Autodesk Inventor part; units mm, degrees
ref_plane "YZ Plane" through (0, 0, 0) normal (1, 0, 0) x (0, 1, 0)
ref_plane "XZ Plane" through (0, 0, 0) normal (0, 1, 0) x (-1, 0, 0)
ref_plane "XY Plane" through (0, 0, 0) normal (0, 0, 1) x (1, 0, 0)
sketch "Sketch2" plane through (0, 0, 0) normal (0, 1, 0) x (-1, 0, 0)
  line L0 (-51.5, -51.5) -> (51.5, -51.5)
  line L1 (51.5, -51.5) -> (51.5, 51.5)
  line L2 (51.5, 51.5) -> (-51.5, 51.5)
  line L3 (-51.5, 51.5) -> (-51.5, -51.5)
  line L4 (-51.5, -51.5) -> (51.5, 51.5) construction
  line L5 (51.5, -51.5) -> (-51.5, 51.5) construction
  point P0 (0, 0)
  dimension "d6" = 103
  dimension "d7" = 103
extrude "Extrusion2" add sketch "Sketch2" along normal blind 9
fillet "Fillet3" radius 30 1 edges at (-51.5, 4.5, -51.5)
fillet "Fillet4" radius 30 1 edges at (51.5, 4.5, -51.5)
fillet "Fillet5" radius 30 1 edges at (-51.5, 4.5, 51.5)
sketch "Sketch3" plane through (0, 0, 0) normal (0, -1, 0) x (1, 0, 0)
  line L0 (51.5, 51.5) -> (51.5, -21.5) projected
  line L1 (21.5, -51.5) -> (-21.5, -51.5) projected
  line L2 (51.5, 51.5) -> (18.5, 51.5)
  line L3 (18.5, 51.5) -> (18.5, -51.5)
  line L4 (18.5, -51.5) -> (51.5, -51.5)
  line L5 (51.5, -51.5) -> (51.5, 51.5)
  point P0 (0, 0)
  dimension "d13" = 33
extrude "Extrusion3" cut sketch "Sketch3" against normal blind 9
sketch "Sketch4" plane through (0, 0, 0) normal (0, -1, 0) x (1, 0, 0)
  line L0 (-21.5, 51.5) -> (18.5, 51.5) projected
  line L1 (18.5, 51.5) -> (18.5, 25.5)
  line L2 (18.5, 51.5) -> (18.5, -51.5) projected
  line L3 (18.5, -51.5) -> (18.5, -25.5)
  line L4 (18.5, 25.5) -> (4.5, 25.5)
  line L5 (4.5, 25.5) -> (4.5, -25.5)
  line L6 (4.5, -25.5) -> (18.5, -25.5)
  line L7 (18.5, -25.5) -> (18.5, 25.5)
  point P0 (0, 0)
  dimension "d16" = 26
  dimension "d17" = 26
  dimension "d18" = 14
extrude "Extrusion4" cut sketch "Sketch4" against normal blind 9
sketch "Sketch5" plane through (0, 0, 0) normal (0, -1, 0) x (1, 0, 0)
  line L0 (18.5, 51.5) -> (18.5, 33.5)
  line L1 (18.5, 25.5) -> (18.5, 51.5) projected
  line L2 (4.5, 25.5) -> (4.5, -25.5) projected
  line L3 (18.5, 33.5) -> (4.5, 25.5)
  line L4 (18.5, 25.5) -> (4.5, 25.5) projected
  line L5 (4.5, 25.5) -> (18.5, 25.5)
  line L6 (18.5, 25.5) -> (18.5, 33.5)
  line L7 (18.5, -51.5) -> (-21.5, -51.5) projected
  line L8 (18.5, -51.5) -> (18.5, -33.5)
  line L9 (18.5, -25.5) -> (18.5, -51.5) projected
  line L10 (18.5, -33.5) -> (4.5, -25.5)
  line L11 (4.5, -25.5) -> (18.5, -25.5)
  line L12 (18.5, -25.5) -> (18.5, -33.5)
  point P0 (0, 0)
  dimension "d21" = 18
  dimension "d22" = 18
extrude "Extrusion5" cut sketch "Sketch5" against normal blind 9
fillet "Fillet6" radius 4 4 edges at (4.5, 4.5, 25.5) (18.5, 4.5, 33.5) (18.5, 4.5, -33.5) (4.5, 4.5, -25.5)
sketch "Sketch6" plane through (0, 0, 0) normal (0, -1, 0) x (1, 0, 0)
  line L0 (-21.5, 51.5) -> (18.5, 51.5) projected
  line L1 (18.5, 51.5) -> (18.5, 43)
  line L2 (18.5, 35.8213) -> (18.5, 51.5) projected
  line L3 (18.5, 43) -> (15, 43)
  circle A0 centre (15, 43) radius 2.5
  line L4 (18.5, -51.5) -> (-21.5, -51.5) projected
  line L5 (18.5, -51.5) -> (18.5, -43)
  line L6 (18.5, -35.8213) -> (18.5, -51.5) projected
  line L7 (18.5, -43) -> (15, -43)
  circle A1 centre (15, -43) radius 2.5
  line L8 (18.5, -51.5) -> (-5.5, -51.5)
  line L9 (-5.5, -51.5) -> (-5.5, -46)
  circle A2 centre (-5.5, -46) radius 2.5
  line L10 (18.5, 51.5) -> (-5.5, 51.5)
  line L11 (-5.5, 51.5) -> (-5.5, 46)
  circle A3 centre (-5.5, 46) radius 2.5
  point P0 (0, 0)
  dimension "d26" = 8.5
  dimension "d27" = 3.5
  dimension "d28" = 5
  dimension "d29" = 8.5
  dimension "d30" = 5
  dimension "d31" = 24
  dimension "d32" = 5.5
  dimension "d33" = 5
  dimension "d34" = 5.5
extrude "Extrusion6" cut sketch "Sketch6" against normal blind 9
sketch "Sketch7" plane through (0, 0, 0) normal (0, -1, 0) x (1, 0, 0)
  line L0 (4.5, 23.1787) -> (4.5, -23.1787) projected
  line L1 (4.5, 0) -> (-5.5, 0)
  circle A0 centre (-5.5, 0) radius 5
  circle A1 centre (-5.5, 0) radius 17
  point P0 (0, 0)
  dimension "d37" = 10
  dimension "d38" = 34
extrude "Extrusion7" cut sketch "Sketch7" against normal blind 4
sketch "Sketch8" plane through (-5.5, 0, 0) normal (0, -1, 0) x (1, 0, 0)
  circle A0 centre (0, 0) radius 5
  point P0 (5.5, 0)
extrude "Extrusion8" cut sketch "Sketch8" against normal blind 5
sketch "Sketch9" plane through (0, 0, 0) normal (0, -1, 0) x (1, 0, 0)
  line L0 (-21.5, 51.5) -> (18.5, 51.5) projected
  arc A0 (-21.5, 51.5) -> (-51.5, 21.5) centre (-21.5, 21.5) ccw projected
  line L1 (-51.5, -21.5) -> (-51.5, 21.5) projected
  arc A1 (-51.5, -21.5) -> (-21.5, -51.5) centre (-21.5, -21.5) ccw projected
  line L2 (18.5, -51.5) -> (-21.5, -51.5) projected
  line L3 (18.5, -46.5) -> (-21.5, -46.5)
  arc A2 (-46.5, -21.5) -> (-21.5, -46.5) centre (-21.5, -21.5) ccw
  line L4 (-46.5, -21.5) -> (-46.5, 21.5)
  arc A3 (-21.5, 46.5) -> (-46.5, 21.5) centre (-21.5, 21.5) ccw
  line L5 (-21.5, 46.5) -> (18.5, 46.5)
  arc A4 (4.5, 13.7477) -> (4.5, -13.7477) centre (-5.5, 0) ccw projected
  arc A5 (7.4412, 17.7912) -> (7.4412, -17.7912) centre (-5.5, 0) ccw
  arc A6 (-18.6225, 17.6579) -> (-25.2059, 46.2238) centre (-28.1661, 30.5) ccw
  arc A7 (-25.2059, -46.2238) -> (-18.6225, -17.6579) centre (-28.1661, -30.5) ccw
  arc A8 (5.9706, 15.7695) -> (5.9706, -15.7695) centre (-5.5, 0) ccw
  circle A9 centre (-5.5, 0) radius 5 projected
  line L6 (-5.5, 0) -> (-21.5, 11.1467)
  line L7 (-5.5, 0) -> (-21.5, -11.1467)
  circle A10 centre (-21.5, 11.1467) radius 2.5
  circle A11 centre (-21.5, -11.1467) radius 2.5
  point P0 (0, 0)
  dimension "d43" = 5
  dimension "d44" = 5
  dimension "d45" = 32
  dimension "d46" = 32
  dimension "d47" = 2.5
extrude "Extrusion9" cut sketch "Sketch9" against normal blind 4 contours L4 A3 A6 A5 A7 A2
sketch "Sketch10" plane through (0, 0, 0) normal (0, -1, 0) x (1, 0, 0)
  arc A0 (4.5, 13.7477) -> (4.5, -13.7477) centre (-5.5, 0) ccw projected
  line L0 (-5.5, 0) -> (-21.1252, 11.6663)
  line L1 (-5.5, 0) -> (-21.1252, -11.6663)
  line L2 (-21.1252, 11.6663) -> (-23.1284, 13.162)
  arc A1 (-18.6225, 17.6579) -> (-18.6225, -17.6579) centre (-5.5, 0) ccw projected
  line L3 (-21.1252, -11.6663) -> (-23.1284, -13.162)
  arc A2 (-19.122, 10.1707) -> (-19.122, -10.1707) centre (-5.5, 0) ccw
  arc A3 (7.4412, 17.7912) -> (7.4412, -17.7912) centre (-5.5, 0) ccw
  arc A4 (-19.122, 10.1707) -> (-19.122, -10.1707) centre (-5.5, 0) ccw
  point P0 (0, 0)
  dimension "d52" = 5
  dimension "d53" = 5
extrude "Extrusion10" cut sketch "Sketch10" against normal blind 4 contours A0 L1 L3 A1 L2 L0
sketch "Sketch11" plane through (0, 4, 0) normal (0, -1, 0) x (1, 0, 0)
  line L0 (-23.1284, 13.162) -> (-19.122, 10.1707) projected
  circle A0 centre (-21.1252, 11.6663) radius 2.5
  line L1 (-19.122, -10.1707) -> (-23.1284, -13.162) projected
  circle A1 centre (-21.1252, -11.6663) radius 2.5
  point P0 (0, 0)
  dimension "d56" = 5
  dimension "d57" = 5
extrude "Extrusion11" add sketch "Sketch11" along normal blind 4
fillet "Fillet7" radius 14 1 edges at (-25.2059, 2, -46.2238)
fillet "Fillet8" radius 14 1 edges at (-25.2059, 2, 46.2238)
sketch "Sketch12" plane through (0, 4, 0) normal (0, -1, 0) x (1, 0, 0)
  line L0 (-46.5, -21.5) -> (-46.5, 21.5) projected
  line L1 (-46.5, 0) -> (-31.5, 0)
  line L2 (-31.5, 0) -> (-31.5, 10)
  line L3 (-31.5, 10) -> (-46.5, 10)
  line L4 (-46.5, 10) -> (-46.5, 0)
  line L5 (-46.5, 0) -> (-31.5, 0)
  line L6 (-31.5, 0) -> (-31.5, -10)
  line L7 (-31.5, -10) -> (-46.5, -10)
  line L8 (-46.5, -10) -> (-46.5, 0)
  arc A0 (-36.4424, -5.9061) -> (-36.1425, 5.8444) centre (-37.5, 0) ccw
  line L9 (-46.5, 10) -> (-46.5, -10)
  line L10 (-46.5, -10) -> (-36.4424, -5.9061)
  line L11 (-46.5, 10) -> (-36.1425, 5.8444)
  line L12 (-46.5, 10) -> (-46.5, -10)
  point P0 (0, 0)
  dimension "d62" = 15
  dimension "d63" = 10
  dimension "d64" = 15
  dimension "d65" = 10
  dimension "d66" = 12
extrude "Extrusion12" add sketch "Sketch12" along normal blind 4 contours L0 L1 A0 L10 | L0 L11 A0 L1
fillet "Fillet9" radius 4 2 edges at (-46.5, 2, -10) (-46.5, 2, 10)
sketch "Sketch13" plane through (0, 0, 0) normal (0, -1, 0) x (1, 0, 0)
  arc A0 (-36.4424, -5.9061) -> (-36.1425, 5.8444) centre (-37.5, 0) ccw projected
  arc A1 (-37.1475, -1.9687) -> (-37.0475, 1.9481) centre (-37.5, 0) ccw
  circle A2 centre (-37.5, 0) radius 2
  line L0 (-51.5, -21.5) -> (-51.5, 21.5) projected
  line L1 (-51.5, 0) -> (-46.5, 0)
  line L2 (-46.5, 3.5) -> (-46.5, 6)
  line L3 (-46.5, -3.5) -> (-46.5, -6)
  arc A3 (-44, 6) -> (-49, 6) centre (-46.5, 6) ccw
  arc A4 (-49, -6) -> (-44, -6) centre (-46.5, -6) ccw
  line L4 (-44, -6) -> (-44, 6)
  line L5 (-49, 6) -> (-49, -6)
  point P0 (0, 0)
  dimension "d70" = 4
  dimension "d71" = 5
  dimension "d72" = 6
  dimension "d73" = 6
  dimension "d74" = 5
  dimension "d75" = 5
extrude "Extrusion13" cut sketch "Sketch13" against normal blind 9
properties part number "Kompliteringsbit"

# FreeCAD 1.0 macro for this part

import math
import FreeCAD as App
import Part
import Sketcher
from FreeCAD import Vector
Q = App.Units.Quantity


def edges_at(feature, points):
    """Names of the edges that pass closest to the given points."""
    edges = feature.Shape.Edges
    near = lambda p: min(range(len(edges)), key=lambda i: edges[i].distToShape(Part.Vertex(*p))[0])
    return sorted({f"Edge{near(p) + 1}" for p in points})

doc = App.newDocument("Part")
body = doc.addObject("PartDesign::Body", "Body")

# Sketch on XZ plane
sketch1 = body.newObject("Sketcher::SketchObject", "Sketch")
sketch1.AttachmentSupport = (doc.getObject("XZ_Plane"), [""])
sketch1.MapMode = "FlatFace"
sketch1.addGeometry(Part.LineSegment(Vector(52, 52, 0), Vector(52, -52, 0)), False)
sketch1.addGeometry(Part.LineSegment(Vector(52, -52, 0), Vector(-52, -52, 0)), False)
sketch1.addGeometry(Part.LineSegment(Vector(-52, -52, 0), Vector(-52, 52, 0)), False)
sketch1.addGeometry(Part.LineSegment(Vector(-52, 52, 0), Vector(52, 52, 0)), False)
sketch1.addConstraint(Sketcher.Constraint("Coincident", 0, 2, 1, 1))
sketch1.addConstraint(Sketcher.Constraint("Coincident", 1, 2, 2, 1))
sketch1.addConstraint(Sketcher.Constraint("Coincident", 2, 2, 3, 1))
sketch1.addConstraint(Sketcher.Constraint("Coincident", 3, 2, 0, 1))
sketch1.addConstraint(Sketcher.Constraint("Vertical", 0))
sketch1.addConstraint(Sketcher.Constraint("Horizontal", 1))
sketch1.addConstraint(Sketcher.Constraint("Vertical", 2))
sketch1.addConstraint(Sketcher.Constraint("Horizontal", 3))
sketch1.addConstraint(Sketcher.Constraint("Symmetric", 0, 2, 2, 2, -1, 1))
sketch1.addConstraint(Sketcher.Constraint("Equal", 3, 0))
sketch1.addConstraint(Sketcher.Constraint("DistanceX", 1, 2, 1, 1, Q("103 mm")))
pad1 = body.newObject("PartDesign::Pad", "Pad")
pad1.Profile = sketch1
pad1.Length = 9
pad1.Reversed = True
doc.recompute()

fillet = body.newObject("PartDesign::Fillet", "Fillet")
fillet.Base = (pad1, edges_at(pad1, [(-51.5, 4.5, -51.5)]))
fillet.Radius = 30
doc.recompute()

fillet2 = body.newObject("PartDesign::Fillet", "Fillet001")
fillet2.Base = (fillet, edges_at(fillet, [(51.5, 4.5, -51.5)]))
fillet2.Radius = 30
doc.recompute()

fillet3 = body.newObject("PartDesign::Fillet", "Fillet002")
fillet3.Base = (fillet2, edges_at(fillet2, [(-51.5, 4.5, 51.5)]))
fillet3.Radius = 30

# Sketch on XZ plane
sketch2 = body.newObject("Sketcher::SketchObject", "Sketch001")
sketch2.AttachmentSupport = (doc.getObject("XZ_Plane"), [""])
sketch2.MapMode = "FlatFace"
sketch2.addGeometry(Part.LineSegment(Vector(52, -52, 0), Vector(52, 52, 0)), False)
sketch2.addGeometry(Part.LineSegment(Vector(52, 52, 0), Vector(18, 52, 0)), False)
sketch2.addGeometry(Part.LineSegment(Vector(18, 52, 0), Vector(18, -52, 0)), False)
sketch2.addGeometry(Part.LineSegment(Vector(18, -52, 0), Vector(52, -52, 0)), False)
sketch2.addConstraint(Sketcher.Constraint("Coincident", 0, 2, 1, 1))
sketch2.addConstraint(Sketcher.Constraint("Coincident", 1, 2, 2, 1))
sketch2.addConstraint(Sketcher.Constraint("Coincident", 2, 2, 3, 1))
sketch2.addConstraint(Sketcher.Constraint("Coincident", 3, 2, 0, 1))
sketch2.addConstraint(Sketcher.Constraint("Vertical", 0))
sketch2.addConstraint(Sketcher.Constraint("Horizontal", 1))
sketch2.addConstraint(Sketcher.Constraint("Vertical", 2))
sketch2.addConstraint(Sketcher.Constraint("Horizontal", 3))
sketch2.addConstraint(Sketcher.Constraint("DistanceX", 1, 2, 1, 1, Q("33 mm")))
sketch2.addConstraint(Sketcher.Constraint("DistanceY", 0, 1, 0, 2, Q("103 mm")))
sketch2.addConstraint(Sketcher.Constraint("DistanceX", -1, 1, 0, 2, Q("51.5 mm")))
sketch2.addConstraint(Sketcher.Constraint("DistanceY", -1, 1, 0, 2, Q("51.5 mm")))
pocket1 = body.newObject("PartDesign::Pocket", "Pocket")
pocket1.Profile = sketch2
pocket1.Length = 9

# Sketch on XZ plane
sketch3 = body.newObject("Sketcher::SketchObject", "Sketch002")
sketch3.AttachmentSupport = (doc.getObject("XZ_Plane"), [""])
sketch3.MapMode = "FlatFace"
sketch3.addGeometry(Part.LineSegment(Vector(18, -26, 0), Vector(18, 26, 0)), False)
sketch3.addGeometry(Part.LineSegment(Vector(18, 26, 0), Vector(4, 26, 0)), False)
sketch3.addGeometry(Part.LineSegment(Vector(4, 26, 0), Vector(4, -26, 0)), False)
sketch3.addGeometry(Part.LineSegment(Vector(4, -26, 0), Vector(18, -26, 0)), False)
sketch3.addConstraint(Sketcher.Constraint("Coincident", 0, 2, 1, 1))
sketch3.addConstraint(Sketcher.Constraint("Coincident", 1, 2, 2, 1))
sketch3.addConstraint(Sketcher.Constraint("Coincident", 2, 2, 3, 1))
sketch3.addConstraint(Sketcher.Constraint("Coincident", 3, 2, 0, 1))
sketch3.addConstraint(Sketcher.Constraint("Vertical", 0))
sketch3.addConstraint(Sketcher.Constraint("Horizontal", 1))
sketch3.addConstraint(Sketcher.Constraint("Vertical", 2))
sketch3.addConstraint(Sketcher.Constraint("Horizontal", 3))
sketch3.addConstraint(Sketcher.Constraint("DistanceX", 1, 2, 1, 1, Q("14 mm")))
sketch3.addConstraint(Sketcher.Constraint("DistanceY", 0, 1, 0, 2, Q("51 mm")))
sketch3.addConstraint(Sketcher.Constraint("DistanceX", -1, 1, 0, 2, Q("18.5 mm")))
sketch3.addConstraint(Sketcher.Constraint("DistanceY", -1, 1, 0, 2, Q("25.5 mm")))
pocket2 = body.newObject("PartDesign::Pocket", "Pocket001")
pocket2.Profile = sketch3
pocket2.Length = 9

# Sketch on XZ plane
sketch4 = body.newObject("Sketcher::SketchObject", "Sketch003")
sketch4.AttachmentSupport = (doc.getObject("XZ_Plane"), [""])
sketch4.MapMode = "FlatFace"
sketch4.addGeometry(Part.LineSegment(Vector(4, 26, 0), Vector(18, 26, 0)), False)
sketch4.addGeometry(Part.LineSegment(Vector(18, 26, 0), Vector(18, 34, 0)), False)
sketch4.addGeometry(Part.LineSegment(Vector(18, 34, 0), Vector(4, 26, 0)), False)
sketch4.addGeometry(Part.LineSegment(Vector(18, -26, 0), Vector(4, -26, 0)), False)
sketch4.addGeometry(Part.LineSegment(Vector(4, -26, 0), Vector(18, -34, 0)), False)
sketch4.addGeometry(Part.LineSegment(Vector(18, -34, 0), Vector(18, -26, 0)), False)
sketch4.addConstraint(Sketcher.Constraint("Coincident", 0, 2, 1, 1))
sketch4.addConstraint(Sketcher.Constraint("Coincident", 1, 2, 2, 1))
sketch4.addConstraint(Sketcher.Constraint("Coincident", 2, 2, 0, 1))
sketch4.addConstraint(Sketcher.Constraint("Coincident", 3, 2, 4, 1))
sketch4.addConstraint(Sketcher.Constraint("Coincident", 4, 2, 5, 1))
sketch4.addConstraint(Sketcher.Constraint("Coincident", 5, 2, 3, 1))
sketch4.addConstraint(Sketcher.Constraint("Horizontal", 0))
sketch4.addConstraint(Sketcher.Constraint("Vertical", 1))
sketch4.addConstraint(Sketcher.Constraint("Horizontal", 3))
sketch4.addConstraint(Sketcher.Constraint("Vertical", 5))
sketch4.addConstraint(Sketcher.Constraint("Symmetric", 2, 2, 3, 2, -1))
sketch4.addConstraint(Sketcher.Constraint("Symmetric", 1, 2, 4, 2, -1))
sketch4.addConstraint(Sketcher.Constraint("DistanceX", 0, 1, 0, 2, Q("14 mm")))
sketch4.addConstraint(Sketcher.Constraint("DistanceY", 1, 1, 1, 2, Q("8 mm")))
sketch4.addConstraint(Sketcher.Constraint("DistanceY", 3, 2, 2, 2, Q("51 mm")))
sketch4.addConstraint(Sketcher.Constraint("DistanceX", -1, 1, 0, 2, Q("18.5 mm")))
pocket3 = body.newObject("PartDesign::Pocket", "Pocket002")
pocket3.Profile = sketch4
pocket3.Length = 9
doc.recompute()

fillet4 = body.newObject("PartDesign::Fillet", "Fillet003")
fillet4.Base = (pocket3, edges_at(pocket3, [
    (4.5, 4.5, 25.5),
    (18.5, 4.5, 33.5),
    (18.5, 4.5, -33.5),
    (4.5, 4.5, -25.5),
]))
fillet4.Radius = 4

# Sketch on XZ plane
sketch5 = body.newObject("Sketcher::SketchObject", "Sketch004")
sketch5.AttachmentSupport = (doc.getObject("XZ_Plane"), [""])
sketch5.MapMode = "FlatFace"
sketch5.addGeometry(Part.Circle(Vector(15, 43, 0), Vector(0, 0, 1), 2.5), False)
sketch5.addGeometry(Part.Circle(Vector(-5.5, 46, 0), Vector(0, 0, 1), 2.5), False)
sketch5.addGeometry(Part.Circle(Vector(-5.5, -46, 0), Vector(0, 0, 1), 2.5), False)
sketch5.addGeometry(Part.Circle(Vector(15, -43, 0), Vector(0, 0, 1), 2.5), False)
sketch5.addConstraint(Sketcher.Constraint("Equal", 0, 1))
sketch5.addConstraint(Sketcher.Constraint("Equal", 1, 2))
sketch5.addConstraint(Sketcher.Constraint("Equal", 2, 3))
sketch5.addConstraint(Sketcher.Constraint("Symmetric", 1, 3, 2, 3, -1))
sketch5.addConstraint(Sketcher.Constraint("Symmetric", 0, 3, 3, 3, -1))
sketch5.addConstraint(Sketcher.Constraint("Diameter", 0, Q("5 mm")))
sketch5.addConstraint(Sketcher.Constraint("DistanceX", 1, 3, -1, 1, Q("5.5 mm")))
sketch5.addConstraint(Sketcher.Constraint("DistanceX", -1, 1, 0, 3, Q("15 mm")))
sketch5.addConstraint(Sketcher.Constraint("DistanceY", -1, 1, 0, 3, Q("43 mm")))
sketch5.addConstraint(Sketcher.Constraint("DistanceY", -1, 1, 1, 3, Q("46 mm")))
pocket4 = body.newObject("PartDesign::Pocket", "Pocket003")
pocket4.Profile = sketch5
pocket4.Length = 9

# Sketch on XZ plane
sketch6 = body.newObject("Sketcher::SketchObject", "Sketch005")
sketch6.AttachmentSupport = (doc.getObject("XZ_Plane"), [""])
sketch6.MapMode = "FlatFace"
sketch6.addGeometry(Part.Circle(Vector(-6, 0, 0), Vector(0, 0, 1), 17), False)
sketch6.addGeometry(Part.Circle(Vector(-6, 0, 0), Vector(0, 0, 1), 5), False)
sketch6.addConstraint(Sketcher.Constraint("Coincident", 1, 3, 0, 3))
sketch6.addConstraint(Sketcher.Constraint("PointOnObject", 0, 3, -1))
sketch6.addConstraint(Sketcher.Constraint("Diameter", 0, Q("34 mm")))
sketch6.addConstraint(Sketcher.Constraint("Diameter", 1, Q("10 mm")))
sketch6.addConstraint(Sketcher.Constraint("DistanceX", 0, 3, -1, 1, Q("5.5 mm")))
pocket5 = body.newObject("PartDesign::Pocket", "Pocket004")
pocket5.Profile = sketch6
pocket5.Length = 4

# Sketch on XZ plane
sketch7 = body.newObject("Sketcher::SketchObject", "Sketch006")
sketch7.AttachmentSupport = (doc.getObject("XZ_Plane"), [""])
sketch7.MapMode = "FlatFace"
sketch7.addGeometry(Part.Circle(Vector(-6, 0, 0), Vector(0, 0, 1), 5), False)
sketch7.addConstraint(Sketcher.Constraint("PointOnObject", 0, 3, -1))
sketch7.addConstraint(Sketcher.Constraint("Diameter", 0, Q("10 mm")))
sketch7.addConstraint(Sketcher.Constraint("DistanceX", 0, 3, -1, 1, Q("5.5 mm")))
pocket6 = body.newObject("PartDesign::Pocket", "Pocket005")
pocket6.Profile = sketch7
pocket6.Length = 5

# Sketch on XZ plane
sketch8 = body.newObject("Sketcher::SketchObject", "Sketch007")
sketch8.AttachmentSupport = (doc.getObject("XZ_Plane"), [""])
sketch8.MapMode = "FlatFace"
sketch8.addGeometry(Part.LineSegment(Vector(-46, 22, 0), Vector(-46, -22, 0)), False)
sketch8.addGeometry(Part.ArcOfCircle(Part.Circle(Vector(-22, -22, 0), Vector(0, 0, 1), 25), math.radians(180), math.radians(261)), False)
sketch8.addGeometry(Part.ArcOfCircle(Part.Circle(Vector(-28, -30, 0), Vector(0, 0, 1), 16), math.radians(-79), math.radians(53)), False)
sketch8.addGeometry(Part.ArcOfCircle(Part.Circle(Vector(-6, 0, 0), Vector(0, 0, 1), 22), math.radians(127), math.radians(233)), False)
sketch8.addGeometry(Part.ArcOfCircle(Part.Circle(Vector(-28, 30, 0), Vector(0, 0, 1), 16), math.radians(-53), math.radians(79)), False)
sketch8.addGeometry(Part.ArcOfCircle(Part.Circle(Vector(-22, 22, 0), Vector(0, 0, 1), 25), math.radians(99), math.radians(180)), False)
sketch8.addConstraint(Sketcher.Constraint("Tangent", 0, 2, 1, 1))
sketch8.addConstraint(Sketcher.Constraint("Coincident", 1, 2, 2, 1))
sketch8.addConstraint(Sketcher.Constraint("Tangent", 2, 2, 3, 2))
sketch8.addConstraint(Sketcher.Constraint("Tangent", 3, 1, 4, 1))
sketch8.addConstraint(Sketcher.Constraint("Coincident", 4, 2, 5, 1))
sketch8.addConstraint(Sketcher.Constraint("Tangent", 5, 2, 0, 1))
sketch8.addConstraint(Sketcher.Constraint("Vertical", 0))
sketch8.addConstraint(Sketcher.Constraint("Equal", 2, 4))
sketch8.addConstraint(Sketcher.Constraint("Equal", 1, 5))
sketch8.addConstraint(Sketcher.Constraint("Symmetric", 2, 3, 4, 3, -1))
sketch8.addConstraint(Sketcher.Constraint("Vertical", 1, 2, 4, 2))
sketch8.addConstraint(Sketcher.Constraint("Radius", 2, Q("16 mm")))
sketch8.addConstraint(Sketcher.Constraint("Radius", 1, Q("25 mm")))
sketch8.addConstraint(Sketcher.Constraint("Radius", 3, Q("22 mm")))
sketch8.addConstraint(Sketcher.Constraint("DistanceY", 0, 2, 0, 1, Q("43 mm")))
sketch8.addConstraint(Sketcher.Constraint("DistanceY", 2, 3, 1, 3, Q("9 mm")))
sketch8.addConstraint(Sketcher.Constraint("DistanceX", 1, 3, 3, 3, Q("16 mm")))
sketch8.addConstraint(Sketcher.Constraint("DistanceX", 1, 3, -1, 1, Q("21.5 mm")))
pocket7 = body.newObject("PartDesign::Pocket", "Pocket006")
pocket7.Profile = sketch8
pocket7.Length = 4

# Sketch on XZ plane
sketch9 = body.newObject("Sketcher::SketchObject", "Sketch008")
sketch9.AttachmentSupport = (doc.getObject("XZ_Plane"), [""])
sketch9.MapMode = "FlatFace"
sketch9.addGeometry(Part.ArcOfCircle(Part.Circle(Vector(-5.5, 0, 0), Vector(0, 0, 1), 17), math.radians(143), math.radians(217)), False)
sketch9.addGeometry(Part.LineSegment(Vector(-19.1, 10.2, 0), Vector(-21.1, 11.7, 0)), False)
sketch9.addGeometry(Part.LineSegment(Vector(-21.1, 11.7, 0), Vector(-23.1, 13.2, 0)), False)
sketch9.addGeometry(Part.ArcOfCircle(Part.Circle(Vector(-5.5, 0, 0), Vector(0, 0, 1), 22), math.radians(143), math.radians(217)), False)
sketch9.addGeometry(Part.LineSegment(Vector(-23.1, -13.2, 0), Vector(-21.1, -11.7, 0)), False)
sketch9.addGeometry(Part.LineSegment(Vector(-21.1, -11.7, 0), Vector(-19.1, -10.2, 0)), False)
sketch9.addConstraint(Sketcher.Constraint("Coincident", 0, 1, 1, 1))
sketch9.addConstraint(Sketcher.Constraint("Coincident", 1, 2, 2, 1))
sketch9.addConstraint(Sketcher.Constraint("Coincident", 2, 2, 3, 1))
sketch9.addConstraint(Sketcher.Constraint("Coincident", 3, 2, 4, 1))
sketch9.addConstraint(Sketcher.Constraint("Coincident", 4, 2, 5, 1))
sketch9.addConstraint(Sketcher.Constraint("Coincident", 5, 2, 0, 2))
sketch9.addConstraint(Sketcher.Constraint("Coincident", 3, 3, 0, 3))
sketch9.addConstraint(Sketcher.Constraint("Symmetric", 2, 2, 3, 2, -1))
sketch9.addConstraint(Sketcher.Constraint("Symmetric", 1, 2, 4, 2, -1))
sketch9.addConstraint(Sketcher.Constraint("Parallel", 1, 2))
sketch9.addConstraint(Sketcher.Constraint("Parallel", 4, 5))
sketch9.addConstraint(Sketcher.Constraint("Equal", 1, 2))
sketch9.addConstraint(Sketcher.Constraint("Radius", 0, Q("17 mm")))
sketch9.addConstraint(Sketcher.Constraint("Radius", 3, Q("22 mm")))
sketch9.addConstraint(Sketcher.Constraint("DistanceX", 0, 3, -1, 1, Q("5.5 mm")))
sketch9.addConstraint(Sketcher.Constraint("DistanceX", 0, 1, -1, 1, Q("19.122 mm")))
sketch9.addConstraint(Sketcher.Constraint("DistanceY", -1, 1, 2, 2, Q("13.162 mm")))
pocket8 = body.newObject("PartDesign::Pocket", "Pocket007")
pocket8.Profile = sketch9
pocket8.Length = 4

# Sketch on XZ plane
sketch10 = body.newObject("Sketcher::SketchObject", "Sketch009")
sketch10.AttachmentSupport = (doc.getObject("XZ_Plane"), [""])
sketch10.MapMode = "FlatFace"
sketch10.AttachmentOffset = App.Placement(Vector(0, 0, -4), App.Rotation())
sketch10.addGeometry(Part.Circle(Vector(-21.1, 11.7, 0), Vector(0, 0, 1), 2.5), False)
sketch10.addGeometry(Part.Circle(Vector(-21.1, -11.7, 0), Vector(0, 0, 1), 2.5), False)
sketch10.addConstraint(Sketcher.Constraint("Equal", 0, 1))
sketch10.addConstraint(Sketcher.Constraint("Symmetric", 0, 3, 1, 3, -1))
sketch10.addConstraint(Sketcher.Constraint("Diameter", 0, Q("5 mm")))
sketch10.addConstraint(Sketcher.Constraint("DistanceX", 0, 3, -1, 1, Q("21.1252 mm")))
sketch10.addConstraint(Sketcher.Constraint("DistanceY", -1, 1, 0, 3, Q("11.6663 mm")))
pad2 = body.newObject("PartDesign::Pad", "Pad001")
pad2.Profile = sketch10
pad2.Length = 4
doc.recompute()

fillet5 = body.newObject("PartDesign::Fillet", "Fillet004")
fillet5.Base = (pad2, edges_at(pad2, [(-25.206, 2, -46.224)]))
fillet5.Radius = 14
doc.recompute()

fillet6 = body.newObject("PartDesign::Fillet", "Fillet005")
fillet6.Base = (fillet5, edges_at(fillet5, [(-25.206, 2, 46.224)]))
fillet6.Radius = 14

# Sketch on XZ plane
sketch11 = body.newObject("Sketcher::SketchObject", "Sketch010")
sketch11.AttachmentSupport = (doc.getObject("XZ_Plane"), [""])
sketch11.MapMode = "FlatFace"
sketch11.AttachmentOffset = App.Placement(Vector(0, 0, -4), App.Rotation())
sketch11.addGeometry(Part.LineSegment(Vector(-46, -10, 0), Vector(-36, -6, 0)), False)
sketch11.addGeometry(Part.ArcOfCircle(Part.Circle(Vector(-38, 0, 0), Vector(0, 0, 1), 6), math.radians(-80), math.radians(77)), False)
sketch11.addGeometry(Part.LineSegment(Vector(-36, 6, 0), Vector(-46, 10, 0)), False)
sketch11.addGeometry(Part.LineSegment(Vector(-46, 10, 0), Vector(-46, -10, 0)), False)
sketch11.addConstraint(Sketcher.Constraint("Coincident", 0, 2, 1, 1))
sketch11.addConstraint(Sketcher.Constraint("Coincident", 1, 2, 2, 1))
sketch11.addConstraint(Sketcher.Constraint("Coincident", 2, 2, 3, 1))
sketch11.addConstraint(Sketcher.Constraint("Coincident", 3, 2, 0, 1))
sketch11.addConstraint(Sketcher.Constraint("Vertical", 3))
sketch11.addConstraint(Sketcher.Constraint("PointOnObject", 1, 3, -1))
sketch11.addConstraint(Sketcher.Constraint("Radius", 1, Q("6 mm")))
sketch11.addConstraint(Sketcher.Constraint("DistanceY", -1, 1, 2, 2, Q("10 mm")))
sketch11.addConstraint(Sketcher.Constraint("DistanceY", 3, 2, -1, 1, Q("10 mm")))
sketch11.addConstraint(Sketcher.Constraint("DistanceX", 2, 2, 1, 3, Q("9 mm")))
sketch11.addConstraint(Sketcher.Constraint("DistanceX", 1, 3, -1, 1, Q("37.5 mm")))
sketch11.addConstraint(Sketcher.Constraint("DistanceX", 0, 2, 1, 2, Q("0.3 mm")))
sketch11.addConstraint(Sketcher.Constraint("Distance", 2, Q("11.16 mm")))
pad3 = body.newObject("PartDesign::Pad", "Pad002")
pad3.Profile = sketch11
pad3.Length = 4
doc.recompute()

fillet7 = body.newObject("PartDesign::Fillet", "Fillet006")
fillet7.Base = (pad3, edges_at(pad3, [(-46.5, 2, -10), (-46.5, 2, 10)]))
fillet7.Radius = 4

# Sketch on XZ plane
sketch12 = body.newObject("Sketcher::SketchObject", "Sketch011")
sketch12.AttachmentSupport = (doc.getObject("XZ_Plane"), [""])
sketch12.MapMode = "FlatFace"
sketch12.addGeometry(Part.ArcOfCircle(Part.Circle(Vector(-37.5, 0, 0), Vector(0, 0, 1), 2), math.radians(77), math.radians(280)), False)
sketch12.addGeometry(Part.ArcOfCircle(Part.Circle(Vector(-37.5, 0, 0), Vector(0, 0, 1), 2), math.radians(-80), math.radians(77)), False)
sketch12.addGeometry(Part.LineSegment(Vector(-44, -6, 0), Vector(-44, 6, 0)), False)
sketch12.addGeometry(Part.ArcOfCircle(Part.Circle(Vector(-46.5, 6, 0), Vector(0, 0, 1), 2.5), math.radians(0), math.radians(180)), False)
sketch12.addGeometry(Part.LineSegment(Vector(-49, 6, 0), Vector(-49, -6, 0)), False)
sketch12.addGeometry(Part.ArcOfCircle(Part.Circle(Vector(-46.5, -6, 0), Vector(0, 0, 1), 2.5), math.radians(180), math.radians(360)), False)
sketch12.addConstraint(Sketcher.Constraint("Tangent", 0, 1, 1, 2))
sketch12.addConstraint(Sketcher.Constraint("Coincident", 1, 1, 0, 2))
sketch12.addConstraint(Sketcher.Constraint("Tangent", 2, 2, 3, 1))
sketch12.addConstraint(Sketcher.Constraint("Tangent", 3, 2, 4, 1))
sketch12.addConstraint(Sketcher.Constraint("Tangent", 4, 2, 5, 1))
sketch12.addConstraint(Sketcher.Constraint("Tangent", 5, 2, 2, 1))
sketch12.addConstraint(Sketcher.Constraint("Vertical", 2))
sketch12.addConstraint(Sketcher.Constraint("Vertical", 4))
sketch12.addConstraint(Sketcher.Constraint("PointOnObject", 0, 3, -1))
sketch12.addConstraint(Sketcher.Constraint("Radius", 0, Q("2 mm")))
sketch12.addConstraint(Sketcher.Constraint("Radius", 3, Q("2.5 mm")))
sketch12.addConstraint(Sketcher.Constraint("DistanceY", -1, 1, 3, 3, Q("6 mm")))
sketch12.addConstraint(Sketcher.Constraint("DistanceY", 5, 3, -1, 1, Q("6 mm")))
sketch12.addConstraint(Sketcher.Constraint("DistanceX", 2, 2, -1, 1, Q("44 mm")))
sketch12.addConstraint(Sketcher.Constraint("DistanceX", 3, 3, 0, 3, Q("9 mm")))
sketch12.addConstraint(Sketcher.Constraint("DistanceX", 1, 1, 0, 1, Q("0.1 mm")))
sketch12.addConstraint(Sketcher.Constraint("DistanceX", 0, 1, -1, 1, Q("37.0475 mm")))
pocket9 = body.newObject("PartDesign::Pocket", "Pocket008")
pocket9.Profile = sketch12
pocket9.Length = 9

doc.recompute()
